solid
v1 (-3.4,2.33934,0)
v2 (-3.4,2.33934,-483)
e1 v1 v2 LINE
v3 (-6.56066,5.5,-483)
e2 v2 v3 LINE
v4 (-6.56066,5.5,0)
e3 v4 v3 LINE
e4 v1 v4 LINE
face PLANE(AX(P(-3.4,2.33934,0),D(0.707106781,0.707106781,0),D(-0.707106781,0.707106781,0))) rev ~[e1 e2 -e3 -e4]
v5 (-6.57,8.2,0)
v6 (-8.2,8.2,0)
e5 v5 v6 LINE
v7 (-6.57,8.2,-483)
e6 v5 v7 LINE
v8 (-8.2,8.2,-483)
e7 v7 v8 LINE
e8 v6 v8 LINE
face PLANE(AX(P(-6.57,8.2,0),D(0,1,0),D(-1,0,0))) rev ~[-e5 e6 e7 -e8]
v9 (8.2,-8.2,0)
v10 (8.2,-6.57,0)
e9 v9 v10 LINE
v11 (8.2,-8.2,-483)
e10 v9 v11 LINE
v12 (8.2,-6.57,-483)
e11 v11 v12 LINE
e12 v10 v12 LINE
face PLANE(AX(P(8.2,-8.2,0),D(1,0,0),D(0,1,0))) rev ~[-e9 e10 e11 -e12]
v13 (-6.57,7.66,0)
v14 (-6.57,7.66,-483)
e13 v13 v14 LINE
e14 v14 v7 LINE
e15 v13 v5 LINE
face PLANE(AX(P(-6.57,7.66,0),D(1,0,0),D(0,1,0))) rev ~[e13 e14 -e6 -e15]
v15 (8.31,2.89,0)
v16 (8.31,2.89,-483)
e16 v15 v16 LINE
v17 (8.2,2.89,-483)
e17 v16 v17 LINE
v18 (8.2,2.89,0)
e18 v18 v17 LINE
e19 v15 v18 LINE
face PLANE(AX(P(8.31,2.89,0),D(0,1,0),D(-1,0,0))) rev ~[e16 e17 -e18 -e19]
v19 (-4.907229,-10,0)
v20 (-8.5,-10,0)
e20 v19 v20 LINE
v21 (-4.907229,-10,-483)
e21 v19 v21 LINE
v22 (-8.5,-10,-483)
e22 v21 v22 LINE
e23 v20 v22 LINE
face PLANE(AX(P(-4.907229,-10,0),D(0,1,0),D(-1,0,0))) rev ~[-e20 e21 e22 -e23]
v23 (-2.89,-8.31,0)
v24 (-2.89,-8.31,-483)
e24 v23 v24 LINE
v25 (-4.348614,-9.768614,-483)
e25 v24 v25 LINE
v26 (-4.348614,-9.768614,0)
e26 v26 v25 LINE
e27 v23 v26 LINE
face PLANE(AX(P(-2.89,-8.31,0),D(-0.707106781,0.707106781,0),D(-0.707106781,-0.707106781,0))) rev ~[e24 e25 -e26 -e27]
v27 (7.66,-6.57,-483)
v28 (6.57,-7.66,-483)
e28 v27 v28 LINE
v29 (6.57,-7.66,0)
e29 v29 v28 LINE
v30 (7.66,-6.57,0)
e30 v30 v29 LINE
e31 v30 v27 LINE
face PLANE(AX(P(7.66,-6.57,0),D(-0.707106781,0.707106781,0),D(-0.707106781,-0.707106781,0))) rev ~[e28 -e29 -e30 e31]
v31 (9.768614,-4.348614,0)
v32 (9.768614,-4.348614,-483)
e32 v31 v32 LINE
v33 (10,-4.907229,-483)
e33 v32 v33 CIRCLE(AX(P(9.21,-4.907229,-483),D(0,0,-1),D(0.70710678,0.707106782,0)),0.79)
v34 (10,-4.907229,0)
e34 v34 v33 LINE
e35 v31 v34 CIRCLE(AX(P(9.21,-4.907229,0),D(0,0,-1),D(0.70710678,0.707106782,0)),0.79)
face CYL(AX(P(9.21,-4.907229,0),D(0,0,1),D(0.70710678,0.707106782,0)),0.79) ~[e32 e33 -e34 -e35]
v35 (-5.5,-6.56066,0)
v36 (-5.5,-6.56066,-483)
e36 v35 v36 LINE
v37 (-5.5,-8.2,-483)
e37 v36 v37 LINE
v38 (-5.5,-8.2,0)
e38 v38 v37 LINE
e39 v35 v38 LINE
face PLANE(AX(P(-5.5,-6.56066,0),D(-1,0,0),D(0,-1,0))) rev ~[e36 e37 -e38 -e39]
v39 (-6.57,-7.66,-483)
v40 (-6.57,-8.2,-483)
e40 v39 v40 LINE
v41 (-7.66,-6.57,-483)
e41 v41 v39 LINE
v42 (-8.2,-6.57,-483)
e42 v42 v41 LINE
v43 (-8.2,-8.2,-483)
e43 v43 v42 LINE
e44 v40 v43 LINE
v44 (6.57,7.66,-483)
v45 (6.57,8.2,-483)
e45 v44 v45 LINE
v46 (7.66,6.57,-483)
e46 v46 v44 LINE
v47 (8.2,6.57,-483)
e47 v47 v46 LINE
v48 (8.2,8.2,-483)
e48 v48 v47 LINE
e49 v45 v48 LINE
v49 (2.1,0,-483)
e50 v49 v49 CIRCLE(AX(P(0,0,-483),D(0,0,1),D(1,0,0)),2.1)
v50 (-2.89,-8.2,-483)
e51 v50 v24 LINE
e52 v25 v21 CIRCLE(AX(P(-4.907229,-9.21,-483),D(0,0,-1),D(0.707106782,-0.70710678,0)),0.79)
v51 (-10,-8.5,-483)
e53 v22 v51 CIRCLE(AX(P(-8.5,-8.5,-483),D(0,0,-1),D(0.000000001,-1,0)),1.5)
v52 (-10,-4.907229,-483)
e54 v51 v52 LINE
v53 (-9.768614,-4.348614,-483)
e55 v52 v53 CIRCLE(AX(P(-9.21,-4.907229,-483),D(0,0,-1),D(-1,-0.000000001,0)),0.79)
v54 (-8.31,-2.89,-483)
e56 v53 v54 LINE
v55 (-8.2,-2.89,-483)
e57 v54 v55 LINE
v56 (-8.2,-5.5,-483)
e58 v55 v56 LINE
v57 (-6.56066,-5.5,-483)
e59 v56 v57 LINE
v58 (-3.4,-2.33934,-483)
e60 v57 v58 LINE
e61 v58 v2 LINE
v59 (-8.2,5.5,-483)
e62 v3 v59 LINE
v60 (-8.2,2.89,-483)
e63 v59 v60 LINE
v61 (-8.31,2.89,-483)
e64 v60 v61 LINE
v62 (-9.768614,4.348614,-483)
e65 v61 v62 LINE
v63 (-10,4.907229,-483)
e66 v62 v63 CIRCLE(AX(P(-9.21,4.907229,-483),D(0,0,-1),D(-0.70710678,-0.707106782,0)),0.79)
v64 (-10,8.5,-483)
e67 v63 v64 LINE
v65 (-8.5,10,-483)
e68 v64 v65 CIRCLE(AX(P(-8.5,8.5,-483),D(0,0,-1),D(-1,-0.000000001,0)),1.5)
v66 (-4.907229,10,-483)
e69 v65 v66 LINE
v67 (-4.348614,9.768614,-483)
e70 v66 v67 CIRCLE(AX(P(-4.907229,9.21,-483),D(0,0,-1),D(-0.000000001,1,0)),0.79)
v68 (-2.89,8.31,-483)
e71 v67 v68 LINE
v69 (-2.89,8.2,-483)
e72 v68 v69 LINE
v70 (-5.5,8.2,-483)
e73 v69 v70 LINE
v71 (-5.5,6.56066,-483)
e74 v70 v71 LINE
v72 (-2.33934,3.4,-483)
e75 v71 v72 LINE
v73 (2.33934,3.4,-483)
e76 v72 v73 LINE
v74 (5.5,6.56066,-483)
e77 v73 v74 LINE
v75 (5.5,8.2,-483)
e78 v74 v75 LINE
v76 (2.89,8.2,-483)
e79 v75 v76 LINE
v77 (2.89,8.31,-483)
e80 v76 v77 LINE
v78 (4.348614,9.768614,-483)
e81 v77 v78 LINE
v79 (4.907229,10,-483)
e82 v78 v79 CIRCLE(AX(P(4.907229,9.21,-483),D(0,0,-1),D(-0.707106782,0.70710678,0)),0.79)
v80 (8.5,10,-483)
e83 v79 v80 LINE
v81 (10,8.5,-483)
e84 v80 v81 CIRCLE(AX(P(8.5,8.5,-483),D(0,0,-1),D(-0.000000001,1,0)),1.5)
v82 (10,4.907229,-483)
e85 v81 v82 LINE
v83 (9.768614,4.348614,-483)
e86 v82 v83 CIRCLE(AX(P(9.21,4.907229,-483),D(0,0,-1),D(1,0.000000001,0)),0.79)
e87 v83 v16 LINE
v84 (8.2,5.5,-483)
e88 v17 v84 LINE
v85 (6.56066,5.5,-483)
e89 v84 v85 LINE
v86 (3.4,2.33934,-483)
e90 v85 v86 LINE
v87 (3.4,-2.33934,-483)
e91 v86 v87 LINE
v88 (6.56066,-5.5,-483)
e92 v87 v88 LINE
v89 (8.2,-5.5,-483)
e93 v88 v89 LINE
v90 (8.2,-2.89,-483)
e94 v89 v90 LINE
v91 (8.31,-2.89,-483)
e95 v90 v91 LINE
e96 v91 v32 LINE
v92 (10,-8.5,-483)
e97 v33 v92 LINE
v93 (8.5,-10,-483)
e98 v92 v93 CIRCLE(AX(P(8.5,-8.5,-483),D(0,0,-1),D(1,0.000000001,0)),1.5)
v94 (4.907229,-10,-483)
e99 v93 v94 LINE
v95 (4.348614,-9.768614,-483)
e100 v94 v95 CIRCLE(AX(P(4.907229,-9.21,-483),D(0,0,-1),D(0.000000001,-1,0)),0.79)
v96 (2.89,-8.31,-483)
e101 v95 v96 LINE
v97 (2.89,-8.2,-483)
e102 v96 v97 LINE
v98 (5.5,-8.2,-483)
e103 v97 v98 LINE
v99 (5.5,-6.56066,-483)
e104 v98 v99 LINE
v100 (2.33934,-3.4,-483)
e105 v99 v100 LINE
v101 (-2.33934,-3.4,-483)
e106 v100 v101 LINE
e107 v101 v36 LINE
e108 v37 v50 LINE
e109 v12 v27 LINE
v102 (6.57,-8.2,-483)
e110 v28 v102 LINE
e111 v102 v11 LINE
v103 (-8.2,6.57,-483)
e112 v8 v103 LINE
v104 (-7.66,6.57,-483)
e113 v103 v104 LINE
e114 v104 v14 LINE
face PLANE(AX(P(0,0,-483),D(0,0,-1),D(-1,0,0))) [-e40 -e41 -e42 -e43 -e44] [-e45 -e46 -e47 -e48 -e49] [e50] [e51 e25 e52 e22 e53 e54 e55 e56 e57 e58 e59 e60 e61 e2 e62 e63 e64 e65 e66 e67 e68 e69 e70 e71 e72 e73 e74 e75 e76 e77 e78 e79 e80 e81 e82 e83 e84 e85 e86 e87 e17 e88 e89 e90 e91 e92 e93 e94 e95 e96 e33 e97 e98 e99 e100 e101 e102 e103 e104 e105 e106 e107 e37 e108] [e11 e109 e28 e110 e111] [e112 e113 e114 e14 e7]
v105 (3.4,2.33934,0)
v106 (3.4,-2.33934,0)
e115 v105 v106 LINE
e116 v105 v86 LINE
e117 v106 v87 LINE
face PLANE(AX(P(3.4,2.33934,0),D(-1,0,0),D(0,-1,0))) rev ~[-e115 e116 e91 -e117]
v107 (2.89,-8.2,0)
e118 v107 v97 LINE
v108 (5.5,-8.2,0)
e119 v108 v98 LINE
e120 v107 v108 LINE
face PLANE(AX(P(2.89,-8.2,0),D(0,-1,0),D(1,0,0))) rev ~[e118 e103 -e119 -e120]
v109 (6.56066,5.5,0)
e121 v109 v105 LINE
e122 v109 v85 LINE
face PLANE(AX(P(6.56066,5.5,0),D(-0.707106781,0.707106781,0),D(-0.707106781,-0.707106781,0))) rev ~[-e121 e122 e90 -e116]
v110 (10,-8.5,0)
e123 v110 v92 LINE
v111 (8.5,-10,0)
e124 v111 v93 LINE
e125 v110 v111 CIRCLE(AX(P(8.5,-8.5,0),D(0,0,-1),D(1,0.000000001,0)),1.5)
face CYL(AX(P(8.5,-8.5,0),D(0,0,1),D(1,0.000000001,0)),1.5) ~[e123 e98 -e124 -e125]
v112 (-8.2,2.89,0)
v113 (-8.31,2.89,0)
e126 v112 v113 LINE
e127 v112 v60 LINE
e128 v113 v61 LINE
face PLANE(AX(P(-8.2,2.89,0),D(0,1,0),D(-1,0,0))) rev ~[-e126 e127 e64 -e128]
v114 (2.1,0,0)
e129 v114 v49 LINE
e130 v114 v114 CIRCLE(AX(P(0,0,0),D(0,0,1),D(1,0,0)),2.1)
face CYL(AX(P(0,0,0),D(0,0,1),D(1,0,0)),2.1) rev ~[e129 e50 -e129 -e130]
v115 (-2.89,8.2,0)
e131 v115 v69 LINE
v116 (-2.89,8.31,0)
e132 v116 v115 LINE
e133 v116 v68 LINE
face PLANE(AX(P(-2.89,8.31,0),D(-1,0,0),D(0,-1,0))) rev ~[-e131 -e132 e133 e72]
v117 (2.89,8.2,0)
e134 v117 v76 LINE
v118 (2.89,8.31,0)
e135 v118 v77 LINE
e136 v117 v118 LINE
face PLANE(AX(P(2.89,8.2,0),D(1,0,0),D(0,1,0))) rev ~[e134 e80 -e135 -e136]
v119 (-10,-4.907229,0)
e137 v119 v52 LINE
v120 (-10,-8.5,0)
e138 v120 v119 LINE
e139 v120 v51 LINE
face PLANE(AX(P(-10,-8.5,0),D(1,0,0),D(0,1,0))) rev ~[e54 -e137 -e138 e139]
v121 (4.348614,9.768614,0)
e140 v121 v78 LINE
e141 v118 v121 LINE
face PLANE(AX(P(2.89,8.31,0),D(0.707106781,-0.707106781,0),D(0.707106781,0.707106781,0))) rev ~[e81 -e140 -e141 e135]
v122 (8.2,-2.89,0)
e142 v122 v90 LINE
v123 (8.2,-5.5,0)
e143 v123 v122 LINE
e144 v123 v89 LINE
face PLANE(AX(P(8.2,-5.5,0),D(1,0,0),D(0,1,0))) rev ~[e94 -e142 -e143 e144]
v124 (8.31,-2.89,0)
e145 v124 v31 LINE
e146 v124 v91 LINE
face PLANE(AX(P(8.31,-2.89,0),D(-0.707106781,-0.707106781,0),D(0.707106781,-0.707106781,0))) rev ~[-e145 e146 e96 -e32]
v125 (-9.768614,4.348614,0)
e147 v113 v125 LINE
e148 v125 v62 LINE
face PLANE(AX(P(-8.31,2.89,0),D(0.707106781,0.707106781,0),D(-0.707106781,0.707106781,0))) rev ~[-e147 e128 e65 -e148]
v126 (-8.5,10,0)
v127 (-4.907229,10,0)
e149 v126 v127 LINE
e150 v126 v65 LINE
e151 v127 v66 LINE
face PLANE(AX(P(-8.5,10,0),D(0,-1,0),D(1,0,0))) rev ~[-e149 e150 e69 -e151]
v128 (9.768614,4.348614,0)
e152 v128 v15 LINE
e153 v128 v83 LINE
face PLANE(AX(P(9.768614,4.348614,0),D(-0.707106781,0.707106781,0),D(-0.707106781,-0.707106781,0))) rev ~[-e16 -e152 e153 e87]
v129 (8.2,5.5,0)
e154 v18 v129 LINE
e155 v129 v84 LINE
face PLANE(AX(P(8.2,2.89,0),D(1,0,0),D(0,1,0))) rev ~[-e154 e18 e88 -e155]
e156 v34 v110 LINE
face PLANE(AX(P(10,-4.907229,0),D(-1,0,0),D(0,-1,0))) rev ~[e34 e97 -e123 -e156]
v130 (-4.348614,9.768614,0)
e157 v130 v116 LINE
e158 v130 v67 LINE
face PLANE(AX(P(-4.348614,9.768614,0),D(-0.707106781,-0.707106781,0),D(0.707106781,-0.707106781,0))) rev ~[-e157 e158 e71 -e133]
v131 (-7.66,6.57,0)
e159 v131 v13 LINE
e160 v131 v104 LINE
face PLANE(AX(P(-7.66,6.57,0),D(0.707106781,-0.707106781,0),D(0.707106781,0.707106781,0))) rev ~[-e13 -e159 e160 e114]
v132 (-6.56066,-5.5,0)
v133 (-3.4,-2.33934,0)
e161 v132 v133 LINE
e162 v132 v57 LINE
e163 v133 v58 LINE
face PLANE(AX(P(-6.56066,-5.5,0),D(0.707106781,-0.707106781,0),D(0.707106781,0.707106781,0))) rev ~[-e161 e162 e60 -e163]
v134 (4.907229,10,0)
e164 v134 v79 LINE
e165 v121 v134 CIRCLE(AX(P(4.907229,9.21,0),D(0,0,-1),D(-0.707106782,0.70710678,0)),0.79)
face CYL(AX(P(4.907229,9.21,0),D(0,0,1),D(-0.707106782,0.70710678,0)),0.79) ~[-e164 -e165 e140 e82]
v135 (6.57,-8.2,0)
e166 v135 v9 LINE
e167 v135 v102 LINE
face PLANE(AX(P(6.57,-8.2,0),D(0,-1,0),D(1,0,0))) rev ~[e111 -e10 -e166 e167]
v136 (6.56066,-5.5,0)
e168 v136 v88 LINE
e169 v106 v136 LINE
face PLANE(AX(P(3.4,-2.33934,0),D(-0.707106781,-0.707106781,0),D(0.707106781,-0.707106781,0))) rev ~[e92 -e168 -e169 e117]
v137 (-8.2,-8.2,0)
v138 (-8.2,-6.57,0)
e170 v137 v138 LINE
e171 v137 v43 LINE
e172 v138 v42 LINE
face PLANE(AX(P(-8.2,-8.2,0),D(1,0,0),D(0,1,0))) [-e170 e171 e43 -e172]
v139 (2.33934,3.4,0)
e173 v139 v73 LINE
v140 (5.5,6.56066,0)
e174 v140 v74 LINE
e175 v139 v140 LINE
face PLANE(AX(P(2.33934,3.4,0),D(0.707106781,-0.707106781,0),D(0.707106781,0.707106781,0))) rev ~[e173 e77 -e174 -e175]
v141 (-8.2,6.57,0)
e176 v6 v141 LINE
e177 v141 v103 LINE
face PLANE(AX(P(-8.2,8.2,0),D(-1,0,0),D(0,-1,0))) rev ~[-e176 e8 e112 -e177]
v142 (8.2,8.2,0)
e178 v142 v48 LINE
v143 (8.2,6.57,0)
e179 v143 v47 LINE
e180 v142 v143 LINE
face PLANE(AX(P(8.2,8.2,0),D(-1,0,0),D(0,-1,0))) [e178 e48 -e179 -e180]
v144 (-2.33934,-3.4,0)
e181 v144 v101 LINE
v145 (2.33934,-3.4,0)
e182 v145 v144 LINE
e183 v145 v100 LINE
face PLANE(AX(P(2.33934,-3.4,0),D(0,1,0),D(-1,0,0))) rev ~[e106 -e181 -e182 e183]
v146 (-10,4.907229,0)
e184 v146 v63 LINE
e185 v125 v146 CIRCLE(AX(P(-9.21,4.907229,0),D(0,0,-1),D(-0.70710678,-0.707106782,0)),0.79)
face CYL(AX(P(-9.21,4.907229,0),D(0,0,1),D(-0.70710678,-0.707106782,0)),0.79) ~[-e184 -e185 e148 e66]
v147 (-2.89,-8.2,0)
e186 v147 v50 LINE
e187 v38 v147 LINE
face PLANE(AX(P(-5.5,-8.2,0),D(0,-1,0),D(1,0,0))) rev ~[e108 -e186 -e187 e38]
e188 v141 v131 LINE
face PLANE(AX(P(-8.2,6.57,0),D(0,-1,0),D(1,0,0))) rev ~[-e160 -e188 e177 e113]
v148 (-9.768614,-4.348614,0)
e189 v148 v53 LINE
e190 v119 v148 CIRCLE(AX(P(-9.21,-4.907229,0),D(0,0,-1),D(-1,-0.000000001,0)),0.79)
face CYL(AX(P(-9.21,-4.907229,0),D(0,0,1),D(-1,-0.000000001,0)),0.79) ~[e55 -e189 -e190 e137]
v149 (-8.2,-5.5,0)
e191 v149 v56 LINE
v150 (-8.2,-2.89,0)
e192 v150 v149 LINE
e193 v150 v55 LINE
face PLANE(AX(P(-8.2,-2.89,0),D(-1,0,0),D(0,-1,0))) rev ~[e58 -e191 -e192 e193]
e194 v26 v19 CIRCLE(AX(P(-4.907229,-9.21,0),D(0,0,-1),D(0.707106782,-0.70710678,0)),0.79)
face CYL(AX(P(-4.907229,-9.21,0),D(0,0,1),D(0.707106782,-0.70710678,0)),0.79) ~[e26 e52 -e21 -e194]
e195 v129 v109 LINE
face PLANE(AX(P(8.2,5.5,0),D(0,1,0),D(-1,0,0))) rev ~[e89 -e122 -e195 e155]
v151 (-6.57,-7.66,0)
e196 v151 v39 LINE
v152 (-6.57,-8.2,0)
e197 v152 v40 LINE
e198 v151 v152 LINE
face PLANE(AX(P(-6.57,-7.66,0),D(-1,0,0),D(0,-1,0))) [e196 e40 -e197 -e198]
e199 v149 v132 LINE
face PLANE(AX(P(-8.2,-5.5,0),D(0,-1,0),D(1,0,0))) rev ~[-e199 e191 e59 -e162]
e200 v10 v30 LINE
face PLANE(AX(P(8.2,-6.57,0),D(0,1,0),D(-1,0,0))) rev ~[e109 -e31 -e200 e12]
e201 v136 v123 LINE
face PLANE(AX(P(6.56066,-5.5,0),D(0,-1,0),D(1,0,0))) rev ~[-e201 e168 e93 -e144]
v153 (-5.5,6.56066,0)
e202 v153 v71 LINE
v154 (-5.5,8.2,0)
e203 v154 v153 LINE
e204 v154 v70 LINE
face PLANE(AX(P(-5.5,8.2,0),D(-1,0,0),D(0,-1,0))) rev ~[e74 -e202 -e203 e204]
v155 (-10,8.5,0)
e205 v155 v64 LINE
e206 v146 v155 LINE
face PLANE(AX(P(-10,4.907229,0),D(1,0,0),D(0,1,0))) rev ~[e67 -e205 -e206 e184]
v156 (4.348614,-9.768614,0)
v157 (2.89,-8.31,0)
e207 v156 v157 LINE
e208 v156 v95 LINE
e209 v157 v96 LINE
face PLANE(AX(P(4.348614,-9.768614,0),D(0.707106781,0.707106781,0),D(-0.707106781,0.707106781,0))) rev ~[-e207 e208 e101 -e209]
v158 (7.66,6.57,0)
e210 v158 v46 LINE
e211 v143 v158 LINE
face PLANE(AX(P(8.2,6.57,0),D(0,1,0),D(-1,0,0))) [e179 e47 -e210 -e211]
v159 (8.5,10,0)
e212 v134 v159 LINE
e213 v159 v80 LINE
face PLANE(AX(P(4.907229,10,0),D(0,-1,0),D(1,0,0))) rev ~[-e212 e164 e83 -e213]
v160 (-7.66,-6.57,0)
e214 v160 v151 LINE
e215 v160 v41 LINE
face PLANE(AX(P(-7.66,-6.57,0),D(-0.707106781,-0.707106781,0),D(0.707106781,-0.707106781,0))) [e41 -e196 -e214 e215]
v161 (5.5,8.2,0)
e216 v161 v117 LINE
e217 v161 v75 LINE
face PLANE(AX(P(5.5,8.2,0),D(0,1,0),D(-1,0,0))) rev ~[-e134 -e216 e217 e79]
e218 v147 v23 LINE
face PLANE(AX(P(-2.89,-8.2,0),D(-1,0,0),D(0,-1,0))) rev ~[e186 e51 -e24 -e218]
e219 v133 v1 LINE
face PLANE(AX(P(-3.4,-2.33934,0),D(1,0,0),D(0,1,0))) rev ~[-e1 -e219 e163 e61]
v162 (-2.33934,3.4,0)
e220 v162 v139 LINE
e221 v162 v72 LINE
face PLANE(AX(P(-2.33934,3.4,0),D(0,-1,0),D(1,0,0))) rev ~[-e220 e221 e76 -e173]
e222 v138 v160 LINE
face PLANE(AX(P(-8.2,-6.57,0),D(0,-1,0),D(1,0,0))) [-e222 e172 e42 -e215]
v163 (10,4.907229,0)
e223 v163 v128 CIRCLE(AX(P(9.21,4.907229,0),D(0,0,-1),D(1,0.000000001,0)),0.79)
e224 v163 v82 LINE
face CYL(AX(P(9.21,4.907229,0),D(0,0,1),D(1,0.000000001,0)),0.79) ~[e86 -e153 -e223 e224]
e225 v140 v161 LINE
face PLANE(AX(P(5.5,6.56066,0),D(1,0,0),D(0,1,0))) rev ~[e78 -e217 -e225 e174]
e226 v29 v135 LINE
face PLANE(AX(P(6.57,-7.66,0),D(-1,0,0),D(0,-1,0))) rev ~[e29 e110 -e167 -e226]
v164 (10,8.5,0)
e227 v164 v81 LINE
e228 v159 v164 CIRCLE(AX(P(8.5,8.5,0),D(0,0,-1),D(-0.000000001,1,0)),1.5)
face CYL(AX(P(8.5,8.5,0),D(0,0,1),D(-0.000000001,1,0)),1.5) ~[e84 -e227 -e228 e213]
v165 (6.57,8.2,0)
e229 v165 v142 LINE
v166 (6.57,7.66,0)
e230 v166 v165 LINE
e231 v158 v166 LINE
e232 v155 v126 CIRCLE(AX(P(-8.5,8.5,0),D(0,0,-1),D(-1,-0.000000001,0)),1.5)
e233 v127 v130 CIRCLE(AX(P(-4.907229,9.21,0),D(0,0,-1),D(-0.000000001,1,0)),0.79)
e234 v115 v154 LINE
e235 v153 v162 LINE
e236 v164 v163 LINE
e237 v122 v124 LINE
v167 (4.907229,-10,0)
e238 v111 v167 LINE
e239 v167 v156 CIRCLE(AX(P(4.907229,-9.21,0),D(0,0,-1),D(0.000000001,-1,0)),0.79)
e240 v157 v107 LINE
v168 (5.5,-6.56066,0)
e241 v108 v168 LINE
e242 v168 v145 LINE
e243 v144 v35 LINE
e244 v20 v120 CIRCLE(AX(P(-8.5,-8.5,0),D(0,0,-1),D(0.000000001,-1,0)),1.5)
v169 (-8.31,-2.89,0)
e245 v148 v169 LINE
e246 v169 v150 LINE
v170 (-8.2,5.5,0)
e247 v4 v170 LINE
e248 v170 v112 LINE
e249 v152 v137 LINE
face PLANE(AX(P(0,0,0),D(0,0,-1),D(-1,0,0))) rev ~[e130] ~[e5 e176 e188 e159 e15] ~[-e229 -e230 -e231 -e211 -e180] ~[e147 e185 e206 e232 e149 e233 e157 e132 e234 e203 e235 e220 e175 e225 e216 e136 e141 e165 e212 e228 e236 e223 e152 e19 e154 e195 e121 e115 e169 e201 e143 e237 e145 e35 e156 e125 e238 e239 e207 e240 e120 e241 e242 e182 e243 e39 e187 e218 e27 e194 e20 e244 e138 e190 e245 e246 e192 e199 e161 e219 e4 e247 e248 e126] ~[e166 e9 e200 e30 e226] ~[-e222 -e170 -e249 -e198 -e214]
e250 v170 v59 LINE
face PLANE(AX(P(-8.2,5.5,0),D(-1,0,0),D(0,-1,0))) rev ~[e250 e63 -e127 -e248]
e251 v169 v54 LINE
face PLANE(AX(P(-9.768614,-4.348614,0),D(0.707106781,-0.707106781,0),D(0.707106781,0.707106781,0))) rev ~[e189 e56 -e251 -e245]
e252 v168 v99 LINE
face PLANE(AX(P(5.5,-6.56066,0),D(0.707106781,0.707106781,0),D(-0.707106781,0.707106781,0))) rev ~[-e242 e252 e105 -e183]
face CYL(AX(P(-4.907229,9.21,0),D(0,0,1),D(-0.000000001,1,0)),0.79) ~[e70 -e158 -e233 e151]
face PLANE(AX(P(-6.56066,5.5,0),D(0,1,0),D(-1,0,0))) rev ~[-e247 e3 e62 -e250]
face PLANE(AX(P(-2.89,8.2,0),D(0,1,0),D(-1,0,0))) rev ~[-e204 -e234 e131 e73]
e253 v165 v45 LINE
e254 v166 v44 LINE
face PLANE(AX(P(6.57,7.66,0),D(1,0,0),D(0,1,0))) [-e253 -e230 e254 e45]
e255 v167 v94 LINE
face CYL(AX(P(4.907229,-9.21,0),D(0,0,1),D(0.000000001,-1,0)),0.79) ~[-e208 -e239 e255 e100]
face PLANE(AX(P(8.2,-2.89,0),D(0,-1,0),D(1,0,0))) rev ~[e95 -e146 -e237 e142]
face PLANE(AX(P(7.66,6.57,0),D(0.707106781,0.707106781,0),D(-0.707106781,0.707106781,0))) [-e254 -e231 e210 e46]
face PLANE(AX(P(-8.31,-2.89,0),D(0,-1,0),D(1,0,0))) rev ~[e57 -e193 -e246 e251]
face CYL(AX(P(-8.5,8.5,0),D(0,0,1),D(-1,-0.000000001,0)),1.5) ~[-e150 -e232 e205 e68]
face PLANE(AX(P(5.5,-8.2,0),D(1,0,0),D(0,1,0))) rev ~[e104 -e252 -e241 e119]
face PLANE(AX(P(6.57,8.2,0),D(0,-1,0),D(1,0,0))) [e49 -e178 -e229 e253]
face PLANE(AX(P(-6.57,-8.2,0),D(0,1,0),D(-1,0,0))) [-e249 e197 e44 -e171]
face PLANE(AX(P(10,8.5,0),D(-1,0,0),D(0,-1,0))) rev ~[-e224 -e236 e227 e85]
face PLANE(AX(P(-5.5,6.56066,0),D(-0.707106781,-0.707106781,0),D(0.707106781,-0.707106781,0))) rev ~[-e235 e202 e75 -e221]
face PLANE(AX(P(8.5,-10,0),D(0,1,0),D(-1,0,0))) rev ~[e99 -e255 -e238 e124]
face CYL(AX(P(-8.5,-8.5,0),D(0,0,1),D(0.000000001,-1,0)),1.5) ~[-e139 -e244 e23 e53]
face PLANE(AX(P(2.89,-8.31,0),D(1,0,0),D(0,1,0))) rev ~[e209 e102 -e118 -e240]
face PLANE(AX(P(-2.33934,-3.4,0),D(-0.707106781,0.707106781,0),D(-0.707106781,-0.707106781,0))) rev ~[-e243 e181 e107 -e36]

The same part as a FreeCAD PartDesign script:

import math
import FreeCAD as App
import Part
import Sketcher
Q = App.Units.Quantity

doc = App.newDocument("Part")
body = doc.addObject("PartDesign::Body", "Body")

sketch1 = doc.addObject("Sketcher::SketchObject", "Sketch")
body.addObject(sketch1)
sketch1.AttachmentSupport = (doc.XY_Plane, [""])
sketch1.MapMode = "FlatFace"
sketch1.addGeometry(Part.LineSegment(App.Vector(-3.4, 2.33934, 0), App.Vector(-3.4, -2.33934, 0)), False)
sketch1.addGeometry(Part.LineSegment(App.Vector(-3.4, -2.33934, 0), App.Vector(-6.56066, -5.5, 0)), False)
sketch1.addGeometry(Part.LineSegment(App.Vector(-6.56066, -5.5, 0), App.Vector(-8.2, -5.5, 0)), False)
sketch1.addGeometry(Part.LineSegment(App.Vector(-8.2, -5.5, 0), App.Vector(-8.2, -2.89, 0)), False)
sketch1.addGeometry(Part.LineSegment(App.Vector(-8.2, -2.89, 0), App.Vector(-8.31, -2.89, 0)), False)
sketch1.addGeometry(Part.LineSegment(App.Vector(-8.31, -2.89, 0), App.Vector(-9.768614, -4.348614, 0)), False)
sketch1.addGeometry(Part.ArcOfCircle(Part.Circle(App.Vector(-9.21, -4.907229, 0), App.Vector(0, 0, 1), 0.79), math.radians(135), math.radians(180)), False)
sketch1.addGeometry(Part.LineSegment(App.Vector(-10, -4.907229, 0), App.Vector(-10, -8.5, 0)), False)
sketch1.addGeometry(Part.ArcOfCircle(Part.Circle(App.Vector(-8.5, -8.5, 0), App.Vector(0, 0, 1), 1.5), math.radians(180), math.radians(270)), False)
sketch1.addGeometry(Part.LineSegment(App.Vector(-8.5, -10, 0), App.Vector(-4.907229, -10, 0)), False)
sketch1.addGeometry(Part.ArcOfCircle(Part.Circle(App.Vector(-4.907229, -9.21, 0), App.Vector(0, 0, 1), 0.79), math.radians(-90), math.radians(-45)), False)
sketch1.addGeometry(Part.LineSegment(App.Vector(-4.348614, -9.768614, 0), App.Vector(-2.89, -8.31, 0)), False)
sketch1.addGeometry(Part.LineSegment(App.Vector(-2.89, -8.31, 0), App.Vector(-2.89, -8.2, 0)), False)
sketch1.addGeometry(Part.LineSegment(App.Vector(-2.89, -8.2, 0), App.Vector(-5.5, -8.2, 0)), False)
sketch1.addGeometry(Part.LineSegment(App.Vector(-5.5, -8.2, 0), App.Vector(-5.5, -6.56066, 0)), False)
sketch1.addGeometry(Part.LineSegment(App.Vector(-5.5, -6.56066, 0), App.Vector(-2.33934, -3.4, 0)), False)
sketch1.addGeometry(Part.LineSegment(App.Vector(-2.33934, -3.4, 0), App.Vector(2.33934, -3.4, 0)), False)
sketch1.addGeometry(Part.LineSegment(App.Vector(2.33934, -3.4, 0), App.Vector(5.5, -6.56066, 0)), False)
sketch1.addGeometry(Part.LineSegment(App.Vector(5.5, -6.56066, 0), App.Vector(5.5, -8.2, 0)), False)
sketch1.addGeometry(Part.LineSegment(App.Vector(5.5, -8.2, 0), App.Vector(2.89, -8.2, 0)), False)
sketch1.addGeometry(Part.LineSegment(App.Vector(2.89, -8.2, 0), App.Vector(2.89, -8.31, 0)), False)
sketch1.addGeometry(Part.LineSegment(App.Vector(2.89, -8.31, 0), App.Vector(4.348614, -9.768614, 0)), False)
sketch1.addGeometry(Part.ArcOfCircle(Part.Circle(App.Vector(4.907229, -9.21, 0), App.Vector(0, 0, 1), 0.79), math.radians(-135), math.radians(-90)), False)
sketch1.addGeometry(Part.LineSegment(App.Vector(4.907229, -10, 0), App.Vector(8.5, -10, 0)), False)
sketch1.addGeometry(Part.ArcOfCircle(Part.Circle(App.Vector(8.5, -8.5, 0), App.Vector(0, 0, 1), 1.5), math.radians(-90), math.radians(0)), False)
sketch1.addGeometry(Part.LineSegment(App.Vector(10, -8.5, 0), App.Vector(10, -4.907229, 0)), False)
sketch1.addGeometry(Part.ArcOfCircle(Part.Circle(App.Vector(9.21, -4.907229, 0), App.Vector(0, 0, 1), 0.79), math.radians(0), math.radians(45)), False)
sketch1.addGeometry(Part.LineSegment(App.Vector(9.768614, -4.348614, 0), App.Vector(8.31, -2.89, 0)), False)
sketch1.addGeometry(Part.LineSegment(App.Vector(8.31, -2.89, 0), App.Vector(8.2, -2.89, 0)), False)
sketch1.addGeometry(Part.LineSegment(App.Vector(8.2, -2.89, 0), App.Vector(8.2, -5.5, 0)), False)
sketch1.addGeometry(Part.LineSegment(App.Vector(8.2, -5.5, 0), App.Vector(6.56066, -5.5, 0)), False)
sketch1.addGeometry(Part.LineSegment(App.Vector(6.56066, -5.5, 0), App.Vector(3.4, -2.33934, 0)), False)
sketch1.addGeometry(Part.LineSegment(App.Vector(3.4, -2.33934, 0), App.Vector(3.4, 2.33934, 0)), False)
sketch1.addGeometry(Part.LineSegment(App.Vector(3.4, 2.33934, 0), App.Vector(6.56066, 5.5, 0)), False)
sketch1.addGeometry(Part.LineSegment(App.Vector(6.56066, 5.5, 0), App.Vector(8.2, 5.5, 0)), False)
sketch1.addGeometry(Part.LineSegment(App.Vector(8.2, 5.5, 0), App.Vector(8.2, 2.89, 0)), False)
sketch1.addGeometry(Part.LineSegment(App.Vector(8.2, 2.89, 0), App.Vector(8.31, 2.89, 0)), False)
sketch1.addGeometry(Part.LineSegment(App.Vector(8.31, 2.89, 0), App.Vector(9.768614, 4.348614, 0)), False)
sketch1.addGeometry(Part.ArcOfCircle(Part.Circle(App.Vector(9.21, 4.907229, 0), App.Vector(0, 0, 1), 0.79), math.radians(-45), math.radians(0)), False)
sketch1.addGeometry(Part.LineSegment(App.Vector(10, 4.907229, 0), App.Vector(10, 8.5, 0)), False)
sketch1.addGeometry(Part.ArcOfCircle(Part.Circle(App.Vector(8.5, 8.5, 0), App.Vector(0, 0, 1), 1.5), math.radians(0), math.radians(90)), False)
sketch1.addGeometry(Part.LineSegment(App.Vector(8.5, 10, 0), App.Vector(4.907229, 10, 0)), False)
sketch1.addGeometry(Part.ArcOfCircle(Part.Circle(App.Vector(4.907229, 9.21, 0), App.Vector(0, 0, 1), 0.79), math.radians(90), math.radians(135)), False)
sketch1.addGeometry(Part.LineSegment(App.Vector(4.348614, 9.768614, 0), App.Vector(2.89, 8.31, 0)), False)
sketch1.addGeometry(Part.LineSegment(App.Vector(2.89, 8.31, 0), App.Vector(2.89, 8.2, 0)), False)
sketch1.addGeometry(Part.LineSegment(App.Vector(2.89, 8.2, 0), App.Vector(5.5, 8.2, 0)), False)
sketch1.addGeometry(Part.LineSegment(App.Vector(5.5, 8.2, 0), App.Vector(5.5, 6.56066, 0)), False)
sketch1.addGeometry(Part.LineSegment(App.Vector(5.5, 6.56066, 0), App.Vector(2.33934, 3.4, 0)), False)
sketch1.addGeometry(Part.LineSegment(App.Vector(2.33934, 3.4, 0), App.Vector(-2.33934, 3.4, 0)), False)
sketch1.addGeometry(Part.LineSegment(App.Vector(-2.33934, 3.4, 0), App.Vector(-5.5, 6.56066, 0)), False)
sketch1.addGeometry(Part.LineSegment(App.Vector(-5.5, 6.56066, 0), App.Vector(-5.5, 8.2, 0)), False)
sketch1.addGeometry(Part.LineSegment(App.Vector(-5.5, 8.2, 0), App.Vector(-2.89, 8.2, 0)), False)
sketch1.addGeometry(Part.LineSegment(App.Vector(-2.89, 8.2, 0), App.Vector(-2.89, 8.31, 0)), False)
sketch1.addGeometry(Part.LineSegment(App.Vector(-2.89, 8.31, 0), App.Vector(-4.348614, 9.768614, 0)), False)
sketch1.addGeometry(Part.ArcOfCircle(Part.Circle(App.Vector(-4.907229, 9.21, 0), App.Vector(0, 0, 1), 0.79), math.radians(45), math.radians(90)), False)
sketch1.addGeometry(Part.LineSegment(App.Vector(-4.907229, 10, 0), App.Vector(-8.5, 10, 0)), False)
sketch1.addGeometry(Part.ArcOfCircle(Part.Circle(App.Vector(-8.5, 8.5, 0), App.Vector(0, 0, 1), 1.5), math.radians(90), math.radians(180)), False)
sketch1.addGeometry(Part.LineSegment(App.Vector(-10, 8.5, 0), App.Vector(-10, 4.907229, 0)), False)
sketch1.addGeometry(Part.ArcOfCircle(Part.Circle(App.Vector(-9.21, 4.907229, 0), App.Vector(0, 0, 1), 0.79), math.radians(180), math.radians(225)), False)
sketch1.addGeometry(Part.LineSegment(App.Vector(-9.768614, 4.348614, 0), App.Vector(-8.31, 2.89, 0)), False)
sketch1.addGeometry(Part.LineSegment(App.Vector(-8.31, 2.89, 0), App.Vector(-8.2, 2.89, 0)), False)
sketch1.addGeometry(Part.LineSegment(App.Vector(-8.2, 2.89, 0), App.Vector(-8.2, 5.5, 0)), False)
sketch1.addGeometry(Part.LineSegment(App.Vector(-8.2, 5.5, 0), App.Vector(-6.56066, 5.5, 0)), False)
sketch1.addGeometry(Part.LineSegment(App.Vector(-6.56066, 5.5, 0), App.Vector(-3.4, 2.33934, 0)), False)
sketch1.addGeometry(Part.LineSegment(App.Vector(7.66, -6.57, 0), App.Vector(8.2, -6.57, 0)), False)
sketch1.addGeometry(Part.LineSegment(App.Vector(8.2, -6.57, 0), App.Vector(8.2, -8.2, 0)), False)
sketch1.addGeometry(Part.LineSegment(App.Vector(8.2, -8.2, 0), App.Vector(6.57, -8.2, 0)), False)
sketch1.addGeometry(Part.LineSegment(App.Vector(6.57, -8.2, 0), App.Vector(6.57, -7.66, 0)), False)
sketch1.addGeometry(Part.LineSegment(App.Vector(6.57, -7.66, 0), App.Vector(7.66, -6.57, 0)), False)
sketch1.addGeometry(Part.LineSegment(App.Vector(-8.2, -6.57, 0), App.Vector(-7.66, -6.57, 0)), False)
sketch1.addGeometry(Part.LineSegment(App.Vector(-7.66, -6.57, 0), App.Vector(-6.57, -7.66, 0)), False)
sketch1.addGeometry(Part.LineSegment(App.Vector(-6.57, -7.66, 0), App.Vector(-6.57, -8.2, 0)), False)
sketch1.addGeometry(Part.LineSegment(App.Vector(-6.57, -8.2, 0), App.Vector(-8.2, -8.2, 0)), False)
sketch1.addGeometry(Part.LineSegment(App.Vector(-8.2, -8.2, 0), App.Vector(-8.2, -6.57, 0)), False)
sketch1.addGeometry(Part.LineSegment(App.Vector(8.2, 6.57, 0), App.Vector(7.66, 6.57, 0)), False)
sketch1.addGeometry(Part.LineSegment(App.Vector(7.66, 6.57, 0), App.Vector(6.57, 7.66, 0)), False)
sketch1.addGeometry(Part.LineSegment(App.Vector(6.57, 7.66, 0), App.Vector(6.57, 8.2, 0)), False)
sketch1.addGeometry(Part.LineSegment(App.Vector(6.57, 8.2, 0), App.Vector(8.2, 8.2, 0)), False)
sketch1.addGeometry(Part.LineSegment(App.Vector(8.2, 8.2, 0), App.Vector(8.2, 6.57, 0)), False)
sketch1.addGeometry(Part.Circle(App.Vector(0, 0, 0), App.Vector(0, 0, 1), 2.1), False)
sketch1.addGeometry(Part.LineSegment(App.Vector(-7.66, 6.57, 0), App.Vector(-8.2, 6.57, 0)), False)
sketch1.addGeometry(Part.LineSegment(App.Vector(-8.2, 6.57, 0), App.Vector(-8.2, 8.2, 0)), False)
sketch1.addGeometry(Part.LineSegment(App.Vector(-8.2, 8.2, 0), App.Vector(-6.57, 8.2, 0)), False)
sketch1.addGeometry(Part.LineSegment(App.Vector(-6.57, 8.2, 0), App.Vector(-6.57, 7.66, 0)), False)
sketch1.addGeometry(Part.LineSegment(App.Vector(-6.57, 7.66, 0), App.Vector(-7.66, 6.57, 0)), False)
sketch1.addConstraint(Sketcher.Constraint("Coincident", 0, 2, 1, 1))
sketch1.addConstraint(Sketcher.Constraint("Coincident", 1, 2, 2, 1))
sketch1.addConstraint(Sketcher.Constraint("Coincident", 2, 2, 3, 1))
sketch1.addConstraint(Sketcher.Constraint("Coincident", 3, 2, 4, 1))
sketch1.addConstraint(Sketcher.Constraint("Coincident", 4, 2, 5, 1))
sketch1.addConstraint(Sketcher.Constraint("Tangent", 5, 2, 6, 1))
sketch1.addConstraint(Sketcher.Constraint("Tangent", 6, 2, 7, 1))
sketch1.addConstraint(Sketcher.Constraint("Tangent", 7, 2, 8, 1))
sketch1.addConstraint(Sketcher.Constraint("Tangent", 8, 2, 9, 1))
sketch1.addConstraint(Sketcher.Constraint("Tangent", 9, 2, 10, 1))
sketch1.addConstraint(Sketcher.Constraint("Tangent", 10, 2, 11, 1))
sketch1.addConstraint(Sketcher.Constraint("Coincident", 11, 2, 12, 1))
sketch1.addConstraint(Sketcher.Constraint("Coincident", 12, 2, 13, 1))
sketch1.addConstraint(Sketcher.Constraint("Coincident", 13, 2, 14, 1))
sketch1.addConstraint(Sketcher.Constraint("Coincident", 14, 2, 15, 1))
sketch1.addConstraint(Sketcher.Constraint("Coincident", 15, 2, 16, 1))
sketch1.addConstraint(Sketcher.Constraint("Coincident", 16, 2, 17, 1))
sketch1.addConstraint(Sketcher.Constraint("Coincident", 17, 2, 18, 1))
sketch1.addConstraint(Sketcher.Constraint("Coincident", 18, 2, 19, 1))
sketch1.addConstraint(Sketcher.Constraint("Coincident", 19, 2, 20, 1))
sketch1.addConstraint(Sketcher.Constraint("Coincident", 20, 2, 21, 1))
sketch1.addConstraint(Sketcher.Constraint("Tangent", 21, 2, 22, 1))
sketch1.addConstraint(Sketcher.Constraint("Tangent", 22, 2, 23, 1))
sketch1.addConstraint(Sketcher.Constraint("Tangent", 23, 2, 24, 1))
sketch1.addConstraint(Sketcher.Constraint("Tangent", 24, 2, 25, 1))
sketch1.addConstraint(Sketcher.Constraint("Tangent", 25, 2, 26, 1))
sketch1.addConstraint(Sketcher.Constraint("Tangent", 26, 2, 27, 1))
sketch1.addConstraint(Sketcher.Constraint("Coincident", 27, 2, 28, 1))
sketch1.addConstraint(Sketcher.Constraint("Coincident", 28, 2, 29, 1))
sketch1.addConstraint(Sketcher.Constraint("Coincident", 29, 2, 30, 1))
sketch1.addConstraint(Sketcher.Constraint("Coincident", 30, 2, 31, 1))
sketch1.addConstraint(Sketcher.Constraint("Coincident", 31, 2, 32, 1))
sketch1.addConstraint(Sketcher.Constraint("Coincident", 32, 2, 33, 1))
sketch1.addConstraint(Sketcher.Constraint("Coincident", 33, 2, 34, 1))
sketch1.addConstraint(Sketcher.Constraint("Coincident", 34, 2, 35, 1))
sketch1.addConstraint(Sketcher.Constraint("Coincident", 35, 2, 36, 1))
sketch1.addConstraint(Sketcher.Constraint("Coincident", 36, 2, 37, 1))
sketch1.addConstraint(Sketcher.Constraint("Tangent", 37, 2, 38, 1))
sketch1.addConstraint(Sketcher.Constraint("Tangent", 38, 2, 39, 1))
sketch1.addConstraint(Sketcher.Constraint("Tangent", 39, 2, 40, 1))
sketch1.addConstraint(Sketcher.Constraint("Tangent", 40, 2, 41, 1))
sketch1.addConstraint(Sketcher.Constraint("Tangent", 41, 2, 42, 1))
sketch1.addConstraint(Sketcher.Constraint("Tangent", 42, 2, 43, 1))
sketch1.addConstraint(Sketcher.Constraint("Coincident", 43, 2, 44, 1))
sketch1.addConstraint(Sketcher.Constraint("Coincident", 44, 2, 45, 1))
sketch1.addConstraint(Sketcher.Constraint("Coincident", 45, 2, 46, 1))
sketch1.addConstraint(Sketcher.Constraint("Coincident", 46, 2, 47, 1))
sketch1.addConstraint(Sketcher.Constraint("Coincident", 47, 2, 48, 1))
sketch1.addConstraint(Sketcher.Constraint("Coincident", 48, 2, 49, 1))
sketch1.addConstraint(Sketcher.Constraint("Coincident", 49, 2, 50, 1))
sketch1.addConstraint(Sketcher.Constraint("Coincident", 50, 2, 51, 1))
sketch1.addConstraint(Sketcher.Constraint("Coincident", 51, 2, 52, 1))
sketch1.addConstraint(Sketcher.Constraint("Coincident", 52, 2, 53, 1))
sketch1.addConstraint(Sketcher.Constraint("Tangent", 53, 2, 54, 1))
sketch1.addConstraint(Sketcher.Constraint("Tangent", 54, 2, 55, 1))
sketch1.addConstraint(Sketcher.Constraint("Tangent", 55, 2, 56, 1))
sketch1.addConstraint(Sketcher.Constraint("Tangent", 56, 2, 57, 1))
sketch1.addConstraint(Sketcher.Constraint("Tangent", 57, 2, 58, 1))
sketch1.addConstraint(Sketcher.Constraint("Tangent", 58, 2, 59, 1))
sketch1.addConstraint(Sketcher.Constraint("Coincident", 59, 2, 60, 1))
sketch1.addConstraint(Sketcher.Constraint("Coincident", 60, 2, 61, 1))
sketch1.addConstraint(Sketcher.Constraint("Coincident", 61, 2, 62, 1))
sketch1.addConstraint(Sketcher.Constraint("Coincident", 62, 2, 63, 1))
sketch1.addConstraint(Sketcher.Constraint("Coincident", 63, 2, 0, 1))
sketch1.addConstraint(Sketcher.Constraint("Coincident", 64, 2, 65, 1))
sketch1.addConstraint(Sketcher.Constraint("Coincident", 65, 2, 66, 1))
sketch1.addConstraint(Sketcher.Constraint("Coincident", 66, 2, 67, 1))
sketch1.addConstraint(Sketcher.Constraint("Coincident", 67, 2, 68, 1))
sketch1.addConstraint(Sketcher.Constraint("Coincident", 68, 2, 64, 1))
sketch1.addConstraint(Sketcher.Constraint("Coincident", 69, 2, 70, 1))
sketch1.addConstraint(Sketcher.Constraint("Coincident", 70, 2, 71, 1))
sketch1.addConstraint(Sketcher.Constraint("Coincident", 71, 2, 72, 1))
sketch1.addConstraint(Sketcher.Constraint("Coincident", 72, 2, 73, 1))
sketch1.addConstraint(Sketcher.Constraint("Coincident", 73, 2, 69, 1))
sketch1.addConstraint(Sketcher.Constraint("Coincident", 74, 2, 75, 1))
sketch1.addConstraint(Sketcher.Constraint("Coincident", 75, 2, 76, 1))
sketch1.addConstraint(Sketcher.Constraint("Coincident", 76, 2, 77, 1))
sketch1.addConstraint(Sketcher.Constraint("Coincident", 77, 2, 78, 1))
sketch1.addConstraint(Sketcher.Constraint("Coincident", 78, 2, 74, 1))
sketch1.addConstraint(Sketcher.Constraint("Coincident", 80, 2, 81, 1))
sketch1.addConstraint(Sketcher.Constraint("Coincident", 81, 2, 82, 1))
sketch1.addConstraint(Sketcher.Constraint("Coincident", 82, 2, 83, 1))
sketch1.addConstraint(Sketcher.Constraint("Coincident", 83, 2, 84, 1))
sketch1.addConstraint(Sketcher.Constraint("Coincident", 84, 2, 80, 1))
sketch1.addConstraint(Sketcher.Constraint("Vertical", 0))
sketch1.addConstraint(Sketcher.Constraint("Horizontal", 2))
sketch1.addConstraint(Sketcher.Constraint("Vertical", 3))
sketch1.addConstraint(Sketcher.Constraint("Horizontal", 4))
sketch1.addConstraint(Sketcher.Constraint("Vertical", 7))
sketch1.addConstraint(Sketcher.Constraint("Horizontal", 9))
sketch1.addConstraint(Sketcher.Constraint("Vertical", 12))
sketch1.addConstraint(Sketcher.Constraint("Horizontal", 13))
sketch1.addConstraint(Sketcher.Constraint("Vertical", 14))
sketch1.addConstraint(Sketcher.Constraint("Horizontal", 16))
sketch1.addConstraint(Sketcher.Constraint("Vertical", 18))
sketch1.addConstraint(Sketcher.Constraint("Horizontal", 19))
sketch1.addConstraint(Sketcher.Constraint("Vertical", 20))
sketch1.addConstraint(Sketcher.Constraint("Horizontal", 23))
sketch1.addConstraint(Sketcher.Constraint("Vertical", 25))
sketch1.addConstraint(Sketcher.Constraint("Horizontal", 28))
sketch1.addConstraint(Sketcher.Constraint("Vertical", 29))
sketch1.addConstraint(Sketcher.Constraint("Horizontal", 30))
sketch1.addConstraint(Sketcher.Constraint("Vertical", 32))
sketch1.addConstraint(Sketcher.Constraint("Horizontal", 34))
sketch1.addConstraint(Sketcher.Constraint("Vertical", 35))
sketch1.addConstraint(Sketcher.Constraint("Horizontal", 36))
sketch1.addConstraint(Sketcher.Constraint("Vertical", 39))
sketch1.addConstraint(Sketcher.Constraint("Horizontal", 41))
sketch1.addConstraint(Sketcher.Constraint("Vertical", 44))
sketch1.addConstraint(Sketcher.Constraint("Horizontal", 45))
sketch1.addConstraint(Sketcher.Constraint("Vertical", 46))
sketch1.addConstraint(Sketcher.Constraint("Horizontal", 48))
sketch1.addConstraint(Sketcher.Constraint("Vertical", 50))
sketch1.addConstraint(Sketcher.Constraint("Horizontal", 51))
sketch1.addConstraint(Sketcher.Constraint("Vertical", 52))
sketch1.addConstraint(Sketcher.Constraint("Horizontal", 55))
sketch1.addConstraint(Sketcher.Constraint("Vertical", 57))
sketch1.addConstraint(Sketcher.Constraint("Horizontal", 60))
sketch1.addConstraint(Sketcher.Constraint("Vertical", 61))
sketch1.addConstraint(Sketcher.Constraint("Horizontal", 62))
sketch1.addConstraint(Sketcher.Constraint("Horizontal", 64))
sketch1.addConstraint(Sketcher.Constraint("Vertical", 65))
sketch1.addConstraint(Sketcher.Constraint("Horizontal", 66))
sketch1.addConstraint(Sketcher.Constraint("Vertical", 67))
sketch1.addConstraint(Sketcher.Constraint("Horizontal", 69))
sketch1.addConstraint(Sketcher.Constraint("Vertical", 71))
sketch1.addConstraint(Sketcher.Constraint("Horizontal", 72))
sketch1.addConstraint(Sketcher.Constraint("Vertical", 73))
sketch1.addConstraint(Sketcher.Constraint("Horizontal", 74))
sketch1.addConstraint(Sketcher.Constraint("Vertical", 76))
sketch1.addConstraint(Sketcher.Constraint("Horizontal", 77))
sketch1.addConstraint(Sketcher.Constraint("Vertical", 78))
sketch1.addConstraint(Sketcher.Constraint("Horizontal", 80))
sketch1.addConstraint(Sketcher.Constraint("Vertical", 81))
sketch1.addConstraint(Sketcher.Constraint("Horizontal", 82))
sketch1.addConstraint(Sketcher.Constraint("Vertical", 83))
sketch1.addConstraint(Sketcher.Constraint("Coincident", 79, 3, -1, 1))
sketch1.addConstraint(Sketcher.Constraint("Equal", 6, 10))
sketch1.addConstraint(Sketcher.Constraint("Equal", 10, 22))
sketch1.addConstraint(Sketcher.Constraint("Equal", 8, 24))
sketch1.addConstraint(Sketcher.Constraint("Equal", 22, 26))
sketch1.addConstraint(Sketcher.Constraint("Equal", 26, 38))
sketch1.addConstraint(Sketcher.Constraint("Equal", 24, 40))
sketch1.addConstraint(Sketcher.Constraint("Equal", 38, 42))
sketch1.addConstraint(Sketcher.Constraint("Equal", 42, 54))
sketch1.addConstraint(Sketcher.Constraint("Equal", 40, 56))
sketch1.addConstraint(Sketcher.Constraint("Equal", 54, 58))
sketch1.addConstraint(Sketcher.Constraint("Symmetric", 6, 3, 38, 3, -1, 1))
sketch1.addConstraint(Sketcher.Constraint("Symmetric", 10, 3, 42, 3, -1, 1))
sketch1.addConstraint(Sketcher.Constraint("Symmetric", 22, 3, 54, 3, -1, 1))
sketch1.addConstraint(Sketcher.Constraint("Symmetric", 26, 3, 58, 3, -1, 1))
sketch1.addConstraint(Sketcher.Constraint("Symmetric", 0, 2, 32, 2, -1, 1))
sketch1.addConstraint(Sketcher.Constraint("Symmetric", 1, 2, 33, 2, -1, 1))
sketch1.addConstraint(Sketcher.Constraint("Symmetric", 3, 2, 35, 2, -1, 1))
sketch1.addConstraint(Sketcher.Constraint("Symmetric", 11, 2, 43, 2, -1, 1))
sketch1.addConstraint(Sketcher.Constraint("Symmetric", 13, 2, 45, 2, -1, 1))
sketch1.addConstraint(Sketcher.Constraint("Symmetric", 15, 2, 47, 2, -1, 1))
sketch1.addConstraint(Sketcher.Constraint("Symmetric", 17, 2, 49, 2, -1, 1))
sketch1.addConstraint(Sketcher.Constraint("Symmetric", 19, 2, 51, 2, -1, 1))
sketch1.addConstraint(Sketcher.Constraint("Symmetric", 27, 2, 59, 2, -1, 1))
sketch1.addConstraint(Sketcher.Constraint("Symmetric", 29, 2, 61, 2, -1, 1))
sketch1.addConstraint(Sketcher.Constraint("Symmetric", 69, 2, 74, 2, -1, 1))
sketch1.addConstraint(Sketcher.Constraint("Symmetric", 70, 2, 75, 2, -1, 1))
sketch1.addConstraint(Sketcher.Constraint("Symmetric", 72, 2, 77, 2, -1, 1))
sketch1.addConstraint(Sketcher.Constraint("Symmetric", 64, 2, 80, 2, -1, 1))
sketch1.addConstraint(Sketcher.Constraint("Symmetric", 66, 2, 82, 2, -1, 1))
sketch1.addConstraint(Sketcher.Constraint("Symmetric", 10, 3, 22, 3, -2))
sketch1.addConstraint(Sketcher.Constraint("Symmetric", 6, 3, 26, 3, -2))
sketch1.addConstraint(Sketcher.Constraint("Symmetric", 14, 2, 17, 2, -2))
sketch1.addConstraint(Sketcher.Constraint("Symmetric", 12, 2, 19, 2, -2))
sketch1.addConstraint(Sketcher.Constraint("Symmetric", 4, 2, 27, 2, -2))
sketch1.addConstraint(Sketcher.Constraint("Symmetric", 2, 2, 29, 2, -2))
sketch1.addConstraint(Sketcher.Constraint("Symmetric", 68, 2, 69, 2, -2))
sketch1.addConstraint(Sketcher.Constraint("Symmetric", 67, 2, 70, 2, -2))
sketch1.addConstraint(Sketcher.Constraint("Symmetric", 65, 2, 72, 2, -2))
sketch1.addConstraint(Sketcher.Constraint("Parallel", 1, 5))
sketch1.addConstraint(Sketcher.Constraint("Parallel", 5, 11))
sketch1.addConstraint(Sketcher.Constraint("Parallel", 11, 15))
sketch1.addConstraint(Sketcher.Constraint("Perpendicular", 15, 17))
sketch1.addConstraint(Sketcher.Constraint("Parallel", 17, 21))
sketch1.addConstraint(Sketcher.Constraint("Parallel", 21, 27))
sketch1.addConstraint(Sketcher.Constraint("Parallel", 27, 31))
sketch1.addConstraint(Sketcher.Constraint("Parallel", 33, 37))
sketch1.addConstraint(Sketcher.Constraint("Parallel", 43, 47))
sketch1.addConstraint(Sketcher.Constraint("Perpendicular", 47, 49))
sketch1.addConstraint(Sketcher.Constraint("Parallel", 49, 53))
sketch1.addConstraint(Sketcher.Constraint("Parallel", 59, 63))
sketch1.addConstraint(Sketcher.Constraint("Perpendicular", 63, 68))
sketch1.addConstraint(Sketcher.Constraint("Perpendicular", 75, 84))
sketch1.addConstraint(Sketcher.Constraint("Horizontal", 0, 2, 31, 2))
sketch1.addConstraint(Sketcher.Constraint("Horizontal", 32, 2, 63, 2))
sketch1.addConstraint(Sketcher.Constraint("Horizontal", 19, 2, 65, 2))
sketch1.addConstraint(Sketcher.Constraint("Horizontal", 75, 2, 83, 2))
sketch1.addConstraint(Sketcher.Constraint("Vertical", 35, 2, 64, 2))
sketch1.addConstraint(Sketcher.Constraint("Equal", 48, 0))
sketch1.addConstraint(Sketcher.Constraint("Equal", 51, 3))
sketch1.addConstraint(Sketcher.Constraint("Equal", 55, 7))
sketch1.addConstraint(Sketcher.Constraint("Equal", 60, 12))
sketch1.addConstraint(Sketcher.Constraint("Equal", 62, 14))
sketch1.addConstraint(Sketcher.Constraint("Equal", 82, 65))
sketch1.addConstraint(Sketcher.Constraint("Equal", 5, 11))
sketch1.addConstraint(Sketcher.Constraint("Equal", 1, 15))
sketch1.addConstraint(Sketcher.Constraint("Diameter", 79, Q("4.2 mm")))
sketch1.addConstraint(Sketcher.Constraint("Radius", 8, Q("1.5 mm")))
sketch1.addConstraint(Sketcher.Constraint("Radius", 6, Q("0.79 mm")))
sketch1.addConstraint(Sketcher.Constraint("DistanceX", 6, 2, -1, 1, Q("10 mm")))
sketch1.addConstraint(Sketcher.Constraint("DistanceX", 4, 2, 4, 1, Q("0.11 mm")))
sketch1.addConstraint(Sketcher.Constraint("DistanceX", 13, 2, 13, 1, Q("2.61 mm")))
sketch1.addConstraint(Sketcher.Constraint("DistanceX", 64, 1, 64, 2, Q("0.54 mm")))
sketch1.addConstraint(Sketcher.Constraint("DistanceX", 66, 2, 66, 1, Q("1.63 mm")))
sketch1.addConstraint(Sketcher.Constraint("DistanceX", 0, 2, -1, 1, Q("3.4 mm")))
sketch1.addConstraint(Sketcher.Constraint("DistanceY", 1, 2, -1, 1, Q("5.5 mm")))
sketch1.addConstraint(Sketcher.Constraint("DistanceX", 2, 2, -1, 1, Q("8.2 mm")))
sketch1.addConstraint(Sketcher.Constraint("DistanceX", 2, 2, 2, 1, Q("1.63934 mm")))
pad1 = doc.addObject("PartDesign::Pad", "Pad")
body.addObject(pad1)
pad1.Profile = sketch1
pad1.Length = 483
pad1.Reversed = True

doc.recompute()
